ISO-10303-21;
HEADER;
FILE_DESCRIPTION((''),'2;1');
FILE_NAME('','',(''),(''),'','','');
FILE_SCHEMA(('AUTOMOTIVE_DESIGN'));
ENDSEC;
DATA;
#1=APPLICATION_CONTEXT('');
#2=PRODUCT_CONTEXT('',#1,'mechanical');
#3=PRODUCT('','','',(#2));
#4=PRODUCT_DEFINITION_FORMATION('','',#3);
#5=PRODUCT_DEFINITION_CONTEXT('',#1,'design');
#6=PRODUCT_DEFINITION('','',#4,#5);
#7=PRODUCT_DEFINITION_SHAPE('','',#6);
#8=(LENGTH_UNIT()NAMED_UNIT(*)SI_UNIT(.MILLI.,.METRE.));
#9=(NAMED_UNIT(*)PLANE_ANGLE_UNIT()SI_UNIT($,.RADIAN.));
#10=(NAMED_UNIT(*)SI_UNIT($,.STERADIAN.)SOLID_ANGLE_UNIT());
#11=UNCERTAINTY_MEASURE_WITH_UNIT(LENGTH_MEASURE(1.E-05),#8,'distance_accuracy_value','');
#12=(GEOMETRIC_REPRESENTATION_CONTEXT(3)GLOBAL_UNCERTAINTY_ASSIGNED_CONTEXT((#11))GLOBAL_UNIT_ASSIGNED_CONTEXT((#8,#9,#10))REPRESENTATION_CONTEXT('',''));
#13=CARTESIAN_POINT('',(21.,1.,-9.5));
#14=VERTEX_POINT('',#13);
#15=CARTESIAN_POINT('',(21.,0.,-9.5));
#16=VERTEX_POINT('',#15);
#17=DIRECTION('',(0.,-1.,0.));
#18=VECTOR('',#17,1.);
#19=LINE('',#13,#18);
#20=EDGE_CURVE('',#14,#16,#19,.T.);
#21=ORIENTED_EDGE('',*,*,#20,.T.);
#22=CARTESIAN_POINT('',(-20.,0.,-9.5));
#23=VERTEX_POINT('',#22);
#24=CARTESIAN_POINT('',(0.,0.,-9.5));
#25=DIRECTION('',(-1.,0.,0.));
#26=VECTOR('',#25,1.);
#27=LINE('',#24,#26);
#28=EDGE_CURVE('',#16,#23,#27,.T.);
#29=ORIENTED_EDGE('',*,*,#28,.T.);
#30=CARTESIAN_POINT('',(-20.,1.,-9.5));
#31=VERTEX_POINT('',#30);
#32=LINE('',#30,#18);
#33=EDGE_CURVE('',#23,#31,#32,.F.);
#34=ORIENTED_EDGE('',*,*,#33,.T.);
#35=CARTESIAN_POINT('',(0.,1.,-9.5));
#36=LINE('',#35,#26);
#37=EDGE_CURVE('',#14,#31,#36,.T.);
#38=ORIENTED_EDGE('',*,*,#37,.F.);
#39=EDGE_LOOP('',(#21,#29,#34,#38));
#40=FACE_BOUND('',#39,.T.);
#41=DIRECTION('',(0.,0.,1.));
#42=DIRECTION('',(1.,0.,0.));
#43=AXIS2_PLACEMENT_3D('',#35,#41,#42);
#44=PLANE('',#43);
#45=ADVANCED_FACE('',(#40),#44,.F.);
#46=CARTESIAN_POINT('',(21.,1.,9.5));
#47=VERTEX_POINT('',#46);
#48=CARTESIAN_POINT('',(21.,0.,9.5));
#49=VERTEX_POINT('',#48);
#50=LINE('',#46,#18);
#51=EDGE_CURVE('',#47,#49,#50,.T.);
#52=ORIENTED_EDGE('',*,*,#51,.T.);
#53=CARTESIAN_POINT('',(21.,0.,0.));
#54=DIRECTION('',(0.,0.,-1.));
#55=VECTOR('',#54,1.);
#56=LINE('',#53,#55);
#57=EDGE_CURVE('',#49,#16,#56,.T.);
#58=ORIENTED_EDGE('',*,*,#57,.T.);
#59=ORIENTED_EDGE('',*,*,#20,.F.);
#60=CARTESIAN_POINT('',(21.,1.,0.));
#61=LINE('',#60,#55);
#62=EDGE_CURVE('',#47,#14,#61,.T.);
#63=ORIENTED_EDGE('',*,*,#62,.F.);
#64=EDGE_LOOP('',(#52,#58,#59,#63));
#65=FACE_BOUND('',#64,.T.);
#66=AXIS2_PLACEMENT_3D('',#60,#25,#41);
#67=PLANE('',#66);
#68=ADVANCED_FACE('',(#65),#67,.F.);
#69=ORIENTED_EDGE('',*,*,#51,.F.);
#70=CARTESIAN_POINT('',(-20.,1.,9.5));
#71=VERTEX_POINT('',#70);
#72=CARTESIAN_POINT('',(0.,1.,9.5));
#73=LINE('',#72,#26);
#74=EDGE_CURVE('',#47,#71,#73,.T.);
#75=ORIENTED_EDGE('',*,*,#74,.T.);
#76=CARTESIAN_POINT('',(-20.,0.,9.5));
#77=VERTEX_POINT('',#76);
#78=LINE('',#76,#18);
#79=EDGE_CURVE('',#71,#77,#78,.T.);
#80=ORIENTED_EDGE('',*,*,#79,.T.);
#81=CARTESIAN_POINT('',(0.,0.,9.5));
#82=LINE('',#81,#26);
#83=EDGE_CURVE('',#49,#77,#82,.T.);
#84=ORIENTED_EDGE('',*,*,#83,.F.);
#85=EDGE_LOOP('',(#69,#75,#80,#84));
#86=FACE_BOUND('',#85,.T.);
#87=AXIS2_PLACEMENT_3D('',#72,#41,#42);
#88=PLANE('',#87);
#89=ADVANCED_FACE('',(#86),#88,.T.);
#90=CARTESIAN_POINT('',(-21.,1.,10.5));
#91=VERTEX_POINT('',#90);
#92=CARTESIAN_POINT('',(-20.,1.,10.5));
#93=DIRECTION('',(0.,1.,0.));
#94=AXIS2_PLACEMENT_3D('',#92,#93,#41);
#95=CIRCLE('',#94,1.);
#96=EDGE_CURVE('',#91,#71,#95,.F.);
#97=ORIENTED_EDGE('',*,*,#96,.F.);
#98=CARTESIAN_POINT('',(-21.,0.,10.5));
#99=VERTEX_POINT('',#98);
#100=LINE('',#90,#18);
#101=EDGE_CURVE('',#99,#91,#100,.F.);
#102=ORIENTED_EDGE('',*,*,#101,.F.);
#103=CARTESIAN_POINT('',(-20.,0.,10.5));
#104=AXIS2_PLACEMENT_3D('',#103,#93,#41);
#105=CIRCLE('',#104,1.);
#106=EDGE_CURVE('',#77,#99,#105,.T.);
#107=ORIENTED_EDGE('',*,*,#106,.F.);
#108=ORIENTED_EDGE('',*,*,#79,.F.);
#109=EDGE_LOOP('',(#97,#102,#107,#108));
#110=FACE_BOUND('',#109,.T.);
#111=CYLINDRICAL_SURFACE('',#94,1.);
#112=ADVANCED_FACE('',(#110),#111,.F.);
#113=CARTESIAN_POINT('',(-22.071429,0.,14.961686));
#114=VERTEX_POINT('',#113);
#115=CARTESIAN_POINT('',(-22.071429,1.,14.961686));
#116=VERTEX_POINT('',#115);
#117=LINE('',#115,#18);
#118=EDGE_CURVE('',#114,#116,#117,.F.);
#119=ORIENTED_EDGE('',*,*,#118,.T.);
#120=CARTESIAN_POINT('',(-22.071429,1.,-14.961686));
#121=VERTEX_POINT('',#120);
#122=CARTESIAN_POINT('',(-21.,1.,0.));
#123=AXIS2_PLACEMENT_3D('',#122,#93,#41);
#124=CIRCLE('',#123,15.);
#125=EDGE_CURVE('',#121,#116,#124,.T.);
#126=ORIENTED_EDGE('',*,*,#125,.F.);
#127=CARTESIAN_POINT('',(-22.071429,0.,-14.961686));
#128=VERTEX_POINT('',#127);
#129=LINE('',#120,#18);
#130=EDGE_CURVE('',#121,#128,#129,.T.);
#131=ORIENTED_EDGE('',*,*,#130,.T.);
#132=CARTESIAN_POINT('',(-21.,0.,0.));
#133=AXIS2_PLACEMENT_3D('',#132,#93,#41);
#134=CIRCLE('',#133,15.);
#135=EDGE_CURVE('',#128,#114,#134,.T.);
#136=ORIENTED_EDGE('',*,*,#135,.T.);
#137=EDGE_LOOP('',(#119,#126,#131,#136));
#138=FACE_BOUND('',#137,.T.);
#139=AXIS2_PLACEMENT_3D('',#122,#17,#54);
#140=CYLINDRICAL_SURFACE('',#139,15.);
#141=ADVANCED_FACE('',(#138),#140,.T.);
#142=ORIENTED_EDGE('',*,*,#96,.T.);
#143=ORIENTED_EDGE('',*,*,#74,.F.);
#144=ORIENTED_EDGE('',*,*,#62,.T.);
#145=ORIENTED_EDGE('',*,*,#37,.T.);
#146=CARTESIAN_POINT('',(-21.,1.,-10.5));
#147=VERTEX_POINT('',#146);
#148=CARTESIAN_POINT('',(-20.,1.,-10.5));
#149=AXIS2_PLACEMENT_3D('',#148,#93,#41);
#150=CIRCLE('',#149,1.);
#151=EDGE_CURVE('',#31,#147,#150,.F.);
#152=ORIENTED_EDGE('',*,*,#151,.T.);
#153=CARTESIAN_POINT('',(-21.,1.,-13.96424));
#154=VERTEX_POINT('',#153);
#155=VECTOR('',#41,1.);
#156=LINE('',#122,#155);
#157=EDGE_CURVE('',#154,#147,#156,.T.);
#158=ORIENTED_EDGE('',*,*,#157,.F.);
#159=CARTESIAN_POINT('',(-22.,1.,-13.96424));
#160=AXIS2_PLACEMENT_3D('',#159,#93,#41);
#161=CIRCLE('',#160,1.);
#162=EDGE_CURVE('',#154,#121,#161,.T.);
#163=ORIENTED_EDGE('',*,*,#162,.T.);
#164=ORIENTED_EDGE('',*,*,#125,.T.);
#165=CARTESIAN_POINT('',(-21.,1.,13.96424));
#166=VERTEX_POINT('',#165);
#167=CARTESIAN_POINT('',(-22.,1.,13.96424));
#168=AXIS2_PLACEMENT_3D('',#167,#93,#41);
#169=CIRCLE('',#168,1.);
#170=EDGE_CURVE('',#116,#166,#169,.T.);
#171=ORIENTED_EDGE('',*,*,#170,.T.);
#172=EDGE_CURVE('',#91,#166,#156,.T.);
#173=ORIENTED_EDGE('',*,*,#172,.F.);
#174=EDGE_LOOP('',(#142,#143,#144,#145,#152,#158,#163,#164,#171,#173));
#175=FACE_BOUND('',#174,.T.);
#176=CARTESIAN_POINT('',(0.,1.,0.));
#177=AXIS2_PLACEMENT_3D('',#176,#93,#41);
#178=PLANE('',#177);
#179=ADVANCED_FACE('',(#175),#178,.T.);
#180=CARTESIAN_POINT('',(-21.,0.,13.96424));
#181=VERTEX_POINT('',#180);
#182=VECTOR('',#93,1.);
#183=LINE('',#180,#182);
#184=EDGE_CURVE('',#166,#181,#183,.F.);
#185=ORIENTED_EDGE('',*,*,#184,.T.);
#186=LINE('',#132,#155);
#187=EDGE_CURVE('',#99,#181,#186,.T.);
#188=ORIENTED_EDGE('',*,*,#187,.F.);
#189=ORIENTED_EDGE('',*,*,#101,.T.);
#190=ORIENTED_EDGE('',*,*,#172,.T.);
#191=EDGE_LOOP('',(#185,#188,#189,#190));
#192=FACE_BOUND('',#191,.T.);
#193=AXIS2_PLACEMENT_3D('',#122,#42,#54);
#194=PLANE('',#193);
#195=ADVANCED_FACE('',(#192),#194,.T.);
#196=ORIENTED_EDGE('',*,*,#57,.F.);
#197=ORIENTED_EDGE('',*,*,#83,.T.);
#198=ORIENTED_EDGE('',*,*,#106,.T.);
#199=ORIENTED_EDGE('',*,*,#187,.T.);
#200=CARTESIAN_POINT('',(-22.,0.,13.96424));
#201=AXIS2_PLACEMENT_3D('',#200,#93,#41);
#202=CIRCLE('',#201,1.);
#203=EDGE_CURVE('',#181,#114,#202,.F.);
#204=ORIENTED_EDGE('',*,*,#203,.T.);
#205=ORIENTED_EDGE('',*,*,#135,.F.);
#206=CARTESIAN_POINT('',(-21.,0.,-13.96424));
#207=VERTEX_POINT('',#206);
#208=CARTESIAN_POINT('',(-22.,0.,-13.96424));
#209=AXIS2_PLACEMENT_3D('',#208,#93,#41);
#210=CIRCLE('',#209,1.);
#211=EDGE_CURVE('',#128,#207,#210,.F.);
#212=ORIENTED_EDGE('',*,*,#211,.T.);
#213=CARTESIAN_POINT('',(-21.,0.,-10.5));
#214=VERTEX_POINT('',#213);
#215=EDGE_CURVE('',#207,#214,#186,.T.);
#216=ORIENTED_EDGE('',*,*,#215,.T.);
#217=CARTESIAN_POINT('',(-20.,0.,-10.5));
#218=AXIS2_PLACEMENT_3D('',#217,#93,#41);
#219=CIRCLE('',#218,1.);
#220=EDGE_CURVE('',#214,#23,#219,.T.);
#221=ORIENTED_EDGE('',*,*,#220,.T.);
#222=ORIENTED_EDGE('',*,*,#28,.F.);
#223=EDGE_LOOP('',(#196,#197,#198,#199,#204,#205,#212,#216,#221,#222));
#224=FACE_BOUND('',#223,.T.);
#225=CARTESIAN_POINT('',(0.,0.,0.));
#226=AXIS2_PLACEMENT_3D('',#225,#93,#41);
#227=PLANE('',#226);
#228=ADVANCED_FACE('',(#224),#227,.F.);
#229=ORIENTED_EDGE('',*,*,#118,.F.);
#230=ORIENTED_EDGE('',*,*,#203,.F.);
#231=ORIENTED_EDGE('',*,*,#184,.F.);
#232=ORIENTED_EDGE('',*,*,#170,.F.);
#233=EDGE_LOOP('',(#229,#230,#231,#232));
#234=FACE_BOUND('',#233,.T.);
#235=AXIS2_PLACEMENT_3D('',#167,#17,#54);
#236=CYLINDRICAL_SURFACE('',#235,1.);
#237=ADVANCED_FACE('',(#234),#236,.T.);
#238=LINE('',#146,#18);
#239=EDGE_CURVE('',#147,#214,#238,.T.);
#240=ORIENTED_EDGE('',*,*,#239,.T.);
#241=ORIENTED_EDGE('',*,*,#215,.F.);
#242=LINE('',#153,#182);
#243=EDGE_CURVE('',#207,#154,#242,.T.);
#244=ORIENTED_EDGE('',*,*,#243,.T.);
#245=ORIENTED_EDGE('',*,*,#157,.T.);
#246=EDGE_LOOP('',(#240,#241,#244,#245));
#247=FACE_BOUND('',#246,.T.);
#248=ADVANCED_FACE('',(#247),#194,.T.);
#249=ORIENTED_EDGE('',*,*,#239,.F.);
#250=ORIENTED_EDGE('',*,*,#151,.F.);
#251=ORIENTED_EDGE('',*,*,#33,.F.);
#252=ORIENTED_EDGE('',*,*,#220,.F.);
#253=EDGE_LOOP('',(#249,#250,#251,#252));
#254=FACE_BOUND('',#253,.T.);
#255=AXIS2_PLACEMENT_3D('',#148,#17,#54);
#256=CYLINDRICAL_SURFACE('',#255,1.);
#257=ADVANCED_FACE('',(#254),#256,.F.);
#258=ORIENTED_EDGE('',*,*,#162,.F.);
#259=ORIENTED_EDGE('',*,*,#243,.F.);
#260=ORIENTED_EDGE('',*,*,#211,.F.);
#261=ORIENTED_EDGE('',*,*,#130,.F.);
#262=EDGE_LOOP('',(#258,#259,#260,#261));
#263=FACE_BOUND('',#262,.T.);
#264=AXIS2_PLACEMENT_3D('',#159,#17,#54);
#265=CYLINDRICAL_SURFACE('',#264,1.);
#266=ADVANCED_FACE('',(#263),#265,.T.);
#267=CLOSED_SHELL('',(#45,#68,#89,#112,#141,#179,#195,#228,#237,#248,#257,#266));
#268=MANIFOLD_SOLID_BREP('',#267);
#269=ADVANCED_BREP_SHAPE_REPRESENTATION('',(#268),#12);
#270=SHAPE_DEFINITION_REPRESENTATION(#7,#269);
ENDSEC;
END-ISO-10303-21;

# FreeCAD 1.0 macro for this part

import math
import FreeCAD as App
import Part
import Sketcher

V = App.Vector


def edges_at(feature, points):
    """Names of the edges that pass closest to the given points."""
    edges = feature.Shape.Edges
    near = lambda p: min(range(len(edges)), key=lambda i: edges[i].distToShape(Part.Vertex(*p))[0])
    return sorted({f"Edge{near(p) + 1}" for p in points})

doc = App.newDocument("Part")
body = doc.addObject("PartDesign::Body", "Body")

# Sketch on XZ plane
sketch1 = body.newObject("Sketcher::SketchObject", "Sketch")
sketch1.AttachmentSupport = (doc.getObject("XZ_Plane"), [""])
sketch1.MapMode = "FlatFace"
sketch1.addGeometry(Part.LineSegment(V(-21, -10, 0), V(-21, -15, 0)), False)
sketch1.addGeometry(Part.ArcOfCircle(Part.Circle(V(-21, 0, 0), V(0, 0, 1), 15), math.radians(90), math.radians(270)), False)
sketch1.addGeometry(Part.LineSegment(V(-21, 15, 0), V(-21, 10, 0)), False)
sketch1.addGeometry(Part.LineSegment(V(-21, 10, 0), V(21, 10, 0)), False)
sketch1.addGeometry(Part.LineSegment(V(21, 10, 0), V(21, -10, 0)), False)
sketch1.addGeometry(Part.LineSegment(V(21, -10, 0), V(-21, -10, 0)), False)
sketch1.addConstraint(Sketcher.Constraint("Coincident", 0, 2, 1, 2))
sketch1.addConstraint(Sketcher.Constraint("Coincident", 1, 1, 2, 1))
sketch1.addConstraint(Sketcher.Constraint("Coincident", 2, 2, 3, 1))
sketch1.addConstraint(Sketcher.Constraint("Coincident", 3, 2, 4, 1))
sketch1.addConstraint(Sketcher.Constraint("Coincident", 4, 2, 5, 1))
sketch1.addConstraint(Sketcher.Constraint("Coincident", 5, 2, 0, 1))
sketch1.addConstraint(Sketcher.Constraint("Vertical", 0))
sketch1.addConstraint(Sketcher.Constraint("Vertical", 2))
sketch1.addConstraint(Sketcher.Constraint("Horizontal", 3))
sketch1.addConstraint(Sketcher.Constraint("Vertical", 4))
sketch1.addConstraint(Sketcher.Constraint("Horizontal", 5))
sketch1.addConstraint(Sketcher.Constraint("Symmetric", 2, 2, 4, 2, -1, 1))
sketch1.addConstraint(Sketcher.Constraint("Symmetric", 0, 2, 1, 1, -1))
sketch1.addConstraint(Sketcher.Constraint("Vertical", 1, 3, 0, 2))
sketch1.addConstraint(Sketcher.Constraint("Radius", 1, 15.0))
sketch1.addConstraint(Sketcher.Constraint("DistanceX", 3, 1, 3, 2, 42.0))
sketch1.addConstraint(Sketcher.Constraint("DistanceY", 4, 2, 4, 1, 19.0))
pad1 = body.newObject("PartDesign::Pad", "Pad")
pad1.Profile = sketch1
pad1.Length = 1
pad1.Reversed = True
doc.recompute()

fillet = body.newObject("PartDesign::Fillet", "Fillet")
fillet.Base = (pad1, edges_at(pad1, [
    (-21, 0.5, -9.5),
    (-21, 0.5, 9.5),
    (-21, 0.5, 15),
    (-21, 0.5, -15),
]))
fillet.Radius = 1

doc.recompute()
